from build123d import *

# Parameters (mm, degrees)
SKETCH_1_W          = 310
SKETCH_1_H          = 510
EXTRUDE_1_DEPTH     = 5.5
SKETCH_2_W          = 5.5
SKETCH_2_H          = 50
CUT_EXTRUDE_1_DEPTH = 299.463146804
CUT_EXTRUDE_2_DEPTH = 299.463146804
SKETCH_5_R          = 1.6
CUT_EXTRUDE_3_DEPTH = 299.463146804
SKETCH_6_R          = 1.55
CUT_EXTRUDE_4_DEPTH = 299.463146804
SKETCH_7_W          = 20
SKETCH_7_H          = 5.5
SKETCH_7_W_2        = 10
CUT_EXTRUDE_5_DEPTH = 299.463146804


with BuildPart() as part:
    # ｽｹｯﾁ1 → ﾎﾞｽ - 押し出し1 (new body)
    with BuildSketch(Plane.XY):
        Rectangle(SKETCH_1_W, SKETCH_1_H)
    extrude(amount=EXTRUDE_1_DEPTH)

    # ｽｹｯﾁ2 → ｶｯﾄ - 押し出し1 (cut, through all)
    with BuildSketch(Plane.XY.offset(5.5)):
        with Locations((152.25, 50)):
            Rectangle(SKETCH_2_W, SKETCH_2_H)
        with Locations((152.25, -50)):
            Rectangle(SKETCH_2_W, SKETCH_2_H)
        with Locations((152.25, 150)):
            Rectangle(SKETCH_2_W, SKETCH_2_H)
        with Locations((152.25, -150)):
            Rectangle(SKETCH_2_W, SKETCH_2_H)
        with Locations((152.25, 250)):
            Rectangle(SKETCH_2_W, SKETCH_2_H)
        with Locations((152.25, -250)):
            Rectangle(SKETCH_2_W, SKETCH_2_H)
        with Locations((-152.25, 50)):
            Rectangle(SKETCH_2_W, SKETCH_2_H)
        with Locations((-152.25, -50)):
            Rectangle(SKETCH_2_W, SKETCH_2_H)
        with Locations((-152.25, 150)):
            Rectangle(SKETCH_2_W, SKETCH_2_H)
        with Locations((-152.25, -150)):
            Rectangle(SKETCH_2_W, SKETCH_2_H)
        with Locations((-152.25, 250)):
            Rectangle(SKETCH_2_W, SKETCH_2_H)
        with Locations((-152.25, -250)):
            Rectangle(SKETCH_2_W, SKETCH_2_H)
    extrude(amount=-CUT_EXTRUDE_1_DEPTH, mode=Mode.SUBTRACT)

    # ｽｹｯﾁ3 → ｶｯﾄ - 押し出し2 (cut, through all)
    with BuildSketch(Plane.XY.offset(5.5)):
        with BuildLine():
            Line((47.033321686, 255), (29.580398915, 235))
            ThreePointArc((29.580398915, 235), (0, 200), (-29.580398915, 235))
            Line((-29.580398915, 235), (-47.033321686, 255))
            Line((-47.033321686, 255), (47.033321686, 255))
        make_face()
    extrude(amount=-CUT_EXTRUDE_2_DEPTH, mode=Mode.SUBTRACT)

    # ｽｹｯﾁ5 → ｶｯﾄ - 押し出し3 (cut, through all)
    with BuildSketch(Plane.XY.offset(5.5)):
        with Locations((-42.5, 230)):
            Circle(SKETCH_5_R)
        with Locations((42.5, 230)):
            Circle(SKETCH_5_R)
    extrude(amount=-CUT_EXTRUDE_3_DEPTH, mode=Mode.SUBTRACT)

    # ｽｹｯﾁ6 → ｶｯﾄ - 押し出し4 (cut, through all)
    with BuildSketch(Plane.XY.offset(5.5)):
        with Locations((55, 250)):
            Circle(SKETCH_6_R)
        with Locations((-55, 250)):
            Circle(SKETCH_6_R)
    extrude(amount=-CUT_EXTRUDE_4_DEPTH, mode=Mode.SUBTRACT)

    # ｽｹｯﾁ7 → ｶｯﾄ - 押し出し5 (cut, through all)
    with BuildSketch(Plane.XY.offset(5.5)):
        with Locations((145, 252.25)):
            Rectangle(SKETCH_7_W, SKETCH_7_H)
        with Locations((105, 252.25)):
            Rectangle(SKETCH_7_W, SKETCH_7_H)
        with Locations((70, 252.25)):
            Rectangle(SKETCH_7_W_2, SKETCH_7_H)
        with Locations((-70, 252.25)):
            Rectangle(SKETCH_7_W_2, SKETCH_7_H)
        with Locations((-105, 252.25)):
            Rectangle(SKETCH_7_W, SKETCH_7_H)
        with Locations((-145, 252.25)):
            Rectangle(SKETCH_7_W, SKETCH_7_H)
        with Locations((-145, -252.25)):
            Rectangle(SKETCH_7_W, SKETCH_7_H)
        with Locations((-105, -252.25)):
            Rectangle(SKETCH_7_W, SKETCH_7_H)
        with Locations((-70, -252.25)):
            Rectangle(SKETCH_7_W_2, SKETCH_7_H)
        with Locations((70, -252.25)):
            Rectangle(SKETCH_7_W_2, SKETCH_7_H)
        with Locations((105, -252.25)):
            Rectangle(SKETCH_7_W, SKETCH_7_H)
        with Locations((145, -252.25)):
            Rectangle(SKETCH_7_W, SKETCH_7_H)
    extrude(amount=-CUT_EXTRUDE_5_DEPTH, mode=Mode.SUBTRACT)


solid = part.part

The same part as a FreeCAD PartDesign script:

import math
import FreeCAD as App
import Part
import Sketcher
from FreeCAD import Vector


def add_polygon(sketch, points):
    """Adds a closed chain of lines whose ends are joined by coincident constraints."""
    first, n = sketch.GeometryCount, len(points)
    for a, b in zip(points, points[1:] + points[:1]):
        sketch.addGeometry(Part.LineSegment(App.Vector(*a, 0), App.Vector(*b, 0)), False)
    for i in range(n):
        sketch.addConstraint(Sketcher.Constraint("Coincident", first + i, 2, first + (i + 1) % n, 1))

doc = App.newDocument("Part")
body = doc.addObject("PartDesign::Body", "Body")

sketch1 = body.newObject("Sketcher::SketchObject", "Sketch")
sketch1.AttachmentSupport = (doc.getObject("XY_Plane"), [""])
sketch1.MapMode = "FlatFace"
add_polygon(sketch1, [(-155, 255), (-155, -255), (155, -255), (155, 255)])
sketch1.addConstraint(Sketcher.Constraint("Vertical", 0))
sketch1.addConstraint(Sketcher.Constraint("Horizontal", 1))
sketch1.addConstraint(Sketcher.Constraint("Vertical", 2))
sketch1.addConstraint(Sketcher.Constraint("Horizontal", 3))
sketch1.addConstraint(Sketcher.Constraint("Symmetric", 0, 2, 2, 2, -1, 1))
sketch1.addConstraint(Sketcher.Constraint("DistanceX", 1, 1, 1, 2, 310.0))
sketch1.addConstraint(Sketcher.Constraint("DistanceY", 0, 2, 0, 1, 510.0))
pad1 = body.newObject("PartDesign::Pad", "Pad")
pad1.Profile = sketch1
pad1.Length = 5.5

sketch2 = body.newObject("Sketcher::SketchObject", "Sketch001")
sketch2.AttachmentSupport = (doc.getObject("XY_Plane"), [""])
sketch2.MapMode = "FlatFace"
sketch2.AttachmentOffset = App.Placement(Vector(0, 0, 5.5), App.Rotation())
add_polygon(sketch2, [(150, 75), (150, 25), (155, 25), (155, 75)])
add_polygon(sketch2, [(150, -25), (150, -75), (155, -75), (155, -25)])
add_polygon(sketch2, [(150, 175), (150, 125), (155, 125), (155, 175)])
add_polygon(sketch2, [(150, -125), (150, -175), (155, -175), (155, -125)])
add_polygon(sketch2, [(150, 275), (150, 225), (155, 225), (155, 275)])
add_polygon(sketch2, [(150, -225), (150, -275), (155, -275), (155, -225)])
add_polygon(sketch2, [(-155, 75), (-155, 25), (-150, 25), (-150, 75)])
add_polygon(sketch2, [(-155, -25), (-155, -75), (-150, -75), (-150, -25)])
add_polygon(sketch2, [(-155, 175), (-155, 125), (-150, 125), (-150, 175)])
add_polygon(sketch2, [(-155, -125), (-155, -175), (-150, -175), (-150, -125)])
add_polygon(sketch2, [(-155, 275), (-155, 225), (-150, 225), (-150, 275)])
add_polygon(sketch2, [(-155, -225), (-155, -275), (-150, -275), (-150, -225)])
sketch2.addConstraint(Sketcher.Constraint("Vertical", 0))
sketch2.addConstraint(Sketcher.Constraint("Horizontal", 1))
sketch2.addConstraint(Sketcher.Constraint("Vertical", 2))
sketch2.addConstraint(Sketcher.Constraint("Horizontal", 3))
sketch2.addConstraint(Sketcher.Constraint("Vertical", 4))
sketch2.addConstraint(Sketcher.Constraint("Horizontal", 5))
sketch2.addConstraint(Sketcher.Constraint("Vertical", 6))
sketch2.addConstraint(Sketcher.Constraint("Horizontal", 7))
sketch2.addConstraint(Sketcher.Constraint("Vertical", 8))
sketch2.addConstraint(Sketcher.Constraint("Horizontal", 9))
sketch2.addConstraint(Sketcher.Constraint("Vertical", 10))
sketch2.addConstraint(Sketcher.Constraint("Horizontal", 11))
sketch2.addConstraint(Sketcher.Constraint("Vertical", 12))
sketch2.addConstraint(Sketcher.Constraint("Horizontal", 13))
sketch2.addConstraint(Sketcher.Constraint("Vertical", 14))
sketch2.addConstraint(Sketcher.Constraint("Horizontal", 15))
sketch2.addConstraint(Sketcher.Constraint("Vertical", 16))
sketch2.addConstraint(Sketcher.Constraint("Horizontal", 17))
sketch2.addConstraint(Sketcher.Constraint("Vertical", 18))
sketch2.addConstraint(Sketcher.Constraint("Horizontal", 19))
sketch2.addConstraint(Sketcher.Constraint("Vertical", 20))
sketch2.addConstraint(Sketcher.Constraint("Horizontal", 21))
sketch2.addConstraint(Sketcher.Constraint("Vertical", 22))
sketch2.addConstraint(Sketcher.Constraint("Horizontal", 23))
sketch2.addConstraint(Sketcher.Constraint("Vertical", 24))
sketch2.addConstraint(Sketcher.Constraint("Horizontal", 25))
sketch2.addConstraint(Sketcher.Constraint("Vertical", 26))
sketch2.addConstraint(Sketcher.Constraint("Horizontal", 27))
sketch2.addConstraint(Sketcher.Constraint("Vertical", 28))
sketch2.addConstraint(Sketcher.Constraint("Horizontal", 29))
sketch2.addConstraint(Sketcher.Constraint("Vertical", 30))
sketch2.addConstraint(Sketcher.Constraint("Horizontal", 31))
sketch2.addConstraint(Sketcher.Constraint("Vertical", 32))
sketch2.addConstraint(Sketcher.Constraint("Horizontal", 33))
sketch2.addConstraint(Sketcher.Constraint("Vertical", 34))
sketch2.addConstraint(Sketcher.Constraint("Horizontal", 35))
sketch2.addConstraint(Sketcher.Constraint("Vertical", 36))
sketch2.addConstraint(Sketcher.Constraint("Horizontal", 37))
sketch2.addConstraint(Sketcher.Constraint("Vertical", 38))
sketch2.addConstraint(Sketcher.Constraint("Horizontal", 39))
sketch2.addConstraint(Sketcher.Constraint("Vertical", 40))
sketch2.addConstraint(Sketcher.Constraint("Horizontal", 41))
sketch2.addConstraint(Sketcher.Constraint("Vertical", 42))
sketch2.addConstraint(Sketcher.Constraint("Horizontal", 43))
sketch2.addConstraint(Sketcher.Constraint("Vertical", 44))
sketch2.addConstraint(Sketcher.Constraint("Horizontal", 45))
sketch2.addConstraint(Sketcher.Constraint("Vertical", 46))
sketch2.addConstraint(Sketcher.Constraint("Horizontal", 47))
sketch2.addConstraint(Sketcher.Constraint("Symmetric", 6, 2, 24, 2, -1, 1))
sketch2.addConstraint(Sketcher.Constraint("Symmetric", 4, 2, 26, 2, -1, 1))
sketch2.addConstraint(Sketcher.Constraint("Symmetric", 2, 2, 28, 2, -1, 1))
sketch2.addConstraint(Sketcher.Constraint("Symmetric", 0, 2, 30, 2, -1, 1))
sketch2.addConstraint(Sketcher.Constraint("Symmetric", 14, 2, 32, 2, -1, 1))
sketch2.addConstraint(Sketcher.Constraint("Symmetric", 12, 2, 34, 2, -1, 1))
sketch2.addConstraint(Sketcher.Constraint("Symmetric", 10, 2, 36, 2, -1, 1))
sketch2.addConstraint(Sketcher.Constraint("Symmetric", 8, 2, 38, 2, -1, 1))
sketch2.addConstraint(Sketcher.Constraint("Symmetric", 22, 2, 40, 2, -1, 1))
sketch2.addConstraint(Sketcher.Constraint("Symmetric", 20, 2, 42, 2, -1, 1))
sketch2.addConstraint(Sketcher.Constraint("Symmetric", 18, 2, 44, 2, -1, 1))
sketch2.addConstraint(Sketcher.Constraint("Symmetric", 16, 2, 46, 2, -1, 1))
sketch2.addConstraint(Sketcher.Constraint("Symmetric", 1, 2, 24, 2, -2))
sketch2.addConstraint(Sketcher.Constraint("Symmetric", 3, 2, 26, 2, -2))
sketch2.addConstraint(Sketcher.Constraint("Symmetric", 9, 2, 32, 2, -2))
sketch2.addConstraint(Sketcher.Constraint("Symmetric", 11, 2, 34, 2, -2))
sketch2.addConstraint(Sketcher.Constraint("Symmetric", 17, 2, 40, 2, -2))
sketch2.addConstraint(Sketcher.Constraint("Symmetric", 19, 2, 42, 2, -2))
sketch2.addConstraint(Sketcher.Constraint("Vertical", 7, 2, 8, 2))
sketch2.addConstraint(Sketcher.Constraint("Vertical", 6, 2, 9, 2))
sketch2.addConstraint(Sketcher.Constraint("Vertical", 15, 2, 16, 2))
sketch2.addConstraint(Sketcher.Constraint("Vertical", 14, 2, 17, 2))
sketch2.addConstraint(Sketcher.Constraint("Equal", 6, 8))
sketch2.addConstraint(Sketcher.Constraint("Equal", 14, 16))
sketch2.addConstraint(Sketcher.Constraint("DistanceY", 0, 2, 0, 1, 50.0))
sketch2.addConstraint(Sketcher.Constraint("DistanceX", 1, 1, 1, 2, 5.5))
sketch2.addConstraint(Sketcher.Constraint("DistanceY", -1, 1, 0, 2, 25.0))
sketch2.addConstraint(Sketcher.Constraint("DistanceX", -1, 1, 1, 2, 155.0))
sketch2.addConstraint(Sketcher.Constraint("DistanceY", -1, 1, 8, 2, 125.0))
sketch2.addConstraint(Sketcher.Constraint("DistanceY", -1, 1, 16, 2, 225.0))
pocket1 = body.newObject("PartDesign::Pocket", "Pocket")
pocket1.Profile = sketch2
pocket1.Type = "ThroughAll"

sketch3 = body.newObject("Sketcher::SketchObject", "Sketch002")
sketch3.AttachmentSupport = (doc.getObject("XY_Plane"), [""])
sketch3.MapMode = "FlatFace"
sketch3.AttachmentOffset = App.Placement(Vector(0, 0, 5.5), App.Rotation())
sketch3.addGeometry(Part.LineSegment(Vector(30, 235, 0), Vector(47, 255, 0)), False)
sketch3.addGeometry(Part.LineSegment(Vector(47, 255, 0), Vector(-47, 255, 0)), False)
sketch3.addGeometry(Part.LineSegment(Vector(-47, 255, 0), Vector(-30, 235, 0)), False)
sketch3.addGeometry(Part.ArcOfCircle(Part.Circle(Vector(0, 230, 0), Vector(0, 0, 1), 30), math.radians(170), math.radians(370)), False)
sketch3.addConstraint(Sketcher.Constraint("Coincident", 0, 2, 1, 1))
sketch3.addConstraint(Sketcher.Constraint("Coincident", 1, 2, 2, 1))
sketch3.addConstraint(Sketcher.Constraint("Coincident", 2, 2, 3, 1))
sketch3.addConstraint(Sketcher.Constraint("Coincident", 3, 2, 0, 1))
sketch3.addConstraint(Sketcher.Constraint("Horizontal", 1))
sketch3.addConstraint(Sketcher.Constraint("Symmetric", 2, 2, 3, 2, -2))
sketch3.addConstraint(Sketcher.Constraint("Equal", 0, 2))
sketch3.addConstraint(Sketcher.Constraint("Radius", 3, 30.0))
sketch3.addConstraint(Sketcher.Constraint("DistanceY", -1, 1, 3, 3, 230.0))
sketch3.addConstraint(Sketcher.Constraint("DistanceY", -1, 1, 0, 2, 255.0))
sketch3.addConstraint(Sketcher.Constraint("DistanceY", -1, 1, 2, 2, 235.0))
sketch3.addConstraint(Sketcher.Constraint("DistanceX", 1, 2, 1, 1, 94.066643))
pocket2 = body.newObject("PartDesign::Pocket", "Pocket001")
pocket2.Profile = sketch3
pocket2.Type = "ThroughAll"

sketch4 = body.newObject("Sketcher::SketchObject", "Sketch003")
sketch4.AttachmentSupport = (doc.getObject("XY_Plane"), [""])
sketch4.MapMode = "FlatFace"
sketch4.AttachmentOffset = App.Placement(Vector(0, 0, 5.5), App.Rotation())
sketch4.addGeometry(Part.Circle(Vector(-42.5, 230, 0), Vector(0, 0, 1), 1.6), False)
sketch4.addGeometry(Part.Circle(Vector(42.5, 230, 0), Vector(0, 0, 1), 1.6), False)
sketch4.addConstraint(Sketcher.Constraint("Equal", 0, 1))
sketch4.addConstraint(Sketcher.Constraint("Symmetric", 0, 3, 1, 3, -2))
sketch4.addConstraint(Sketcher.Constraint("Diameter", 0, 3.2))
sketch4.addConstraint(Sketcher.Constraint("DistanceY", -1, 1, 0, 3, 230.0))
sketch4.addConstraint(Sketcher.Constraint("DistanceX", 0, 3, 1, 3, 85.0))
pocket3 = body.newObject("PartDesign::Pocket", "Pocket002")
pocket3.Profile = sketch4
pocket3.Type = "ThroughAll"

sketch5 = body.newObject("Sketcher::SketchObject", "Sketch004")
sketch5.AttachmentSupport = (doc.getObject("XY_Plane"), [""])
sketch5.MapMode = "FlatFace"
sketch5.AttachmentOffset = App.Placement(Vector(0, 0, 5.5), App.Rotation())
sketch5.addGeometry(Part.Circle(Vector(55, 250, 0), Vector(0, 0, 1), 1.6), False)
sketch5.addGeometry(Part.Circle(Vector(-55, 250, 0), Vector(0, 0, 1), 1.6), False)
sketch5.addConstraint(Sketcher.Constraint("Equal", 0, 1))
sketch5.addConstraint(Sketcher.Constraint("Symmetric", 0, 3, 1, 3, -2))
sketch5.addConstraint(Sketcher.Constraint("Diameter", 0, 3.1))
sketch5.addConstraint(Sketcher.Constraint("DistanceX", -1, 1, 0, 3, 55.0))
sketch5.addConstraint(Sketcher.Constraint("DistanceY", -1, 1, 0, 3, 250.0))
pocket4 = body.newObject("PartDesign::Pocket", "Pocket003")
pocket4.Profile = sketch5
pocket4.Type = "ThroughAll"

sketch6 = body.newObject("Sketcher::SketchObject", "Sketch005")
sketch6.AttachmentSupport = (doc.getObject("XY_Plane"), [""])
sketch6.MapMode = "FlatFace"
sketch6.AttachmentOffset = App.Placement(Vector(0, 0, 5.5), App.Rotation())
add_polygon(sketch6, [(135, 255), (135, 250), (155, 250), (155, 255)])
add_polygon(sketch6, [(95, 255), (95, 250), (115, 250), (115, 255)])
add_polygon(sketch6, [(65, 255), (65, 250), (75, 250), (75, 255)])
add_polygon(sketch6, [(-75, 255), (-75, 250), (-65, 250), (-65, 255)])
add_polygon(sketch6, [(-115, 255), (-115, 250), (-95, 250), (-95, 255)])
add_polygon(sketch6, [(-155, 255), (-155, 250), (-135, 250), (-135, 255)])
add_polygon(sketch6, [(-155, -250), (-155, -255), (-135, -255), (-135, -250)])
add_polygon(sketch6, [(-115, -250), (-115, -255), (-95, -255), (-95, -250)])
add_polygon(sketch6, [(-75, -250), (-75, -255), (-65, -255), (-65, -250)])
add_polygon(sketch6, [(65, -250), (65, -255), (75, -255), (75, -250)])
add_polygon(sketch6, [(95, -250), (95, -255), (115, -255), (115, -250)])
add_polygon(sketch6, [(135, -250), (135, -255), (155, -255), (155, -250)])
sketch6.addConstraint(Sketcher.Constraint("Vertical", 0))
sketch6.addConstraint(Sketcher.Constraint("Horizontal", 1))
sketch6.addConstraint(Sketcher.Constraint("Vertical", 2))
sketch6.addConstraint(Sketcher.Constraint("Horizontal", 3))
sketch6.addConstraint(Sketcher.Constraint("Vertical", 4))
sketch6.addConstraint(Sketcher.Constraint("Horizontal", 5))
sketch6.addConstraint(Sketcher.Constraint("Vertical", 6))
sketch6.addConstraint(Sketcher.Constraint("Horizontal", 7))
sketch6.addConstraint(Sketcher.Constraint("Vertical", 8))
sketch6.addConstraint(Sketcher.Constraint("Horizontal", 9))
sketch6.addConstraint(Sketcher.Constraint("Vertical", 10))
sketch6.addConstraint(Sketcher.Constraint("Horizontal", 11))
sketch6.addConstraint(Sketcher.Constraint("Vertical", 12))
sketch6.addConstraint(Sketcher.Constraint("Horizontal", 13))
sketch6.addConstraint(Sketcher.Constraint("Vertical", 14))
sketch6.addConstraint(Sketcher.Constraint("Horizontal", 15))
sketch6.addConstraint(Sketcher.Constraint("Vertical", 16))
sketch6.addConstraint(Sketcher.Constraint("Horizontal", 17))
sketch6.addConstraint(Sketcher.Constraint("Vertical", 18))
sketch6.addConstraint(Sketcher.Constraint("Horizontal", 19))
sketch6.addConstraint(Sketcher.Constraint("Vertical", 20))
sketch6.addConstraint(Sketcher.Constraint("Horizontal", 21))
sketch6.addConstraint(Sketcher.Constraint("Vertical", 22))
sketch6.addConstraint(Sketcher.Constraint("Horizontal", 23))
sketch6.addConstraint(Sketcher.Constraint("Vertical", 24))
sketch6.addConstraint(Sketcher.Constraint("Horizontal", 25))
sketch6.addConstraint(Sketcher.Constraint("Vertical", 26))
sketch6.addConstraint(Sketcher.Constraint("Horizontal", 27))
sketch6.addConstraint(Sketcher.Constraint("Vertical", 28))
sketch6.addConstraint(Sketcher.Constraint("Horizontal", 29))
sketch6.addConstraint(Sketcher.Constraint("Vertical", 30))
sketch6.addConstraint(Sketcher.Constraint("Horizontal", 31))
sketch6.addConstraint(Sketcher.Constraint("Vertical", 32))
sketch6.addConstraint(Sketcher.Constraint("Horizontal", 33))
sketch6.addConstraint(Sketcher.Constraint("Vertical", 34))
sketch6.addConstraint(Sketcher.Constraint("Horizontal", 35))
sketch6.addConstraint(Sketcher.Constraint("Vertical", 36))
sketch6.addConstraint(Sketcher.Constraint("Horizontal", 37))
sketch6.addConstraint(Sketcher.Constraint("Vertical", 38))
sketch6.addConstraint(Sketcher.Constraint("Horizontal", 39))
sketch6.addConstraint(Sketcher.Constraint("Vertical", 40))
sketch6.addConstraint(Sketcher.Constraint("Horizontal", 41))
sketch6.addConstraint(Sketcher.Constraint("Vertical", 42))
sketch6.addConstraint(Sketcher.Constraint("Horizontal", 43))
sketch6.addConstraint(Sketcher.Constraint("Vertical", 44))
sketch6.addConstraint(Sketcher.Constraint("Horizontal", 45))
sketch6.addConstraint(Sketcher.Constraint("Vertical", 46))
sketch6.addConstraint(Sketcher.Constraint("Horizontal", 47))
sketch6.addConstraint(Sketcher.Constraint("Symmetric", 2, 2, 24, 2, -1, 1))
sketch6.addConstraint(Sketcher.Constraint("Symmetric", 0, 2, 26, 2, -1, 1))
sketch6.addConstraint(Sketcher.Constraint("Symmetric", 6, 2, 28, 2, -1, 1))
sketch6.addConstraint(Sketcher.Constraint("Symmetric", 4, 2, 30, 2, -1, 1))
sketch6.addConstraint(Sketcher.Constraint("Symmetric", 10, 2, 32, 2, -1, 1))
sketch6.addConstraint(Sketcher.Constraint("Symmetric", 8, 2, 34, 2, -1, 1))
sketch6.addConstraint(Sketcher.Constraint("Symmetric", 14, 2, 36, 2, -1, 1))
sketch6.addConstraint(Sketcher.Constraint("Symmetric", 12, 2, 38, 2, -1, 1))
sketch6.addConstraint(Sketcher.Constraint("Symmetric", 18, 2, 40, 2, -1, 1))
sketch6.addConstraint(Sketcher.Constraint("Symmetric", 16, 2, 42, 2, -1, 1))
sketch6.addConstraint(Sketcher.Constraint("Symmetric", 22, 2, 44, 2, -1, 1))
sketch6.addConstraint(Sketcher.Constraint("Symmetric", 20, 2, 46, 2, -1, 1))
sketch6.addConstraint(Sketcher.Constraint("Symmetric", 9, 2, 12, 2, -2))
sketch6.addConstraint(Sketcher.Constraint("Symmetric", 11, 2, 14, 2, -2))
sketch6.addConstraint(Sketcher.Constraint("Symmetric", 5, 2, 16, 2, -2))
sketch6.addConstraint(Sketcher.Constraint("Symmetric", 7, 2, 18, 2, -2))
sketch6.addConstraint(Sketcher.Constraint("Symmetric", 1, 2, 20, 2, -2))
sketch6.addConstraint(Sketcher.Constraint("Symmetric", 3, 2, 22, 2, -2))
sketch6.addConstraint(Sketcher.Constraint("Horizontal", 1, 2, 4, 2))
sketch6.addConstraint(Sketcher.Constraint("Horizontal", 3, 2, 6, 2))
sketch6.addConstraint(Sketcher.Constraint("Horizontal", 5, 2, 8, 2))
sketch6.addConstraint(Sketcher.Constraint("Horizontal", 7, 2, 10, 2))
sketch6.addConstraint(Sketcher.Constraint("Equal", 3, 5))
sketch6.addConstraint(Sketcher.Constraint("DistanceX", 1, 1, 1, 2, 20.0))
sketch6.addConstraint(Sketcher.Constraint("DistanceX", 9, 1, 9, 2, 10.0))
sketch6.addConstraint(Sketcher.Constraint("DistanceY", 0, 2, 0, 1, 5.5))
sketch6.addConstraint(Sketcher.Constraint("DistanceX", -1, 1, 0, 2, 135.0))
sketch6.addConstraint(Sketcher.Constraint("DistanceY", -1, 1, 2, 2, 255.0))
sketch6.addConstraint(Sketcher.Constraint("DistanceX", -1, 1, 4, 2, 95.0))
sketch6.addConstraint(Sketcher.Constraint("DistanceX", -1, 1, 8, 2, 65.0))
pocket5 = body.newObject("PartDesign::Pocket", "Pocket004")
pocket5.Profile = sketch6
pocket5.Type = "ThroughAll"

doc.recompute()
